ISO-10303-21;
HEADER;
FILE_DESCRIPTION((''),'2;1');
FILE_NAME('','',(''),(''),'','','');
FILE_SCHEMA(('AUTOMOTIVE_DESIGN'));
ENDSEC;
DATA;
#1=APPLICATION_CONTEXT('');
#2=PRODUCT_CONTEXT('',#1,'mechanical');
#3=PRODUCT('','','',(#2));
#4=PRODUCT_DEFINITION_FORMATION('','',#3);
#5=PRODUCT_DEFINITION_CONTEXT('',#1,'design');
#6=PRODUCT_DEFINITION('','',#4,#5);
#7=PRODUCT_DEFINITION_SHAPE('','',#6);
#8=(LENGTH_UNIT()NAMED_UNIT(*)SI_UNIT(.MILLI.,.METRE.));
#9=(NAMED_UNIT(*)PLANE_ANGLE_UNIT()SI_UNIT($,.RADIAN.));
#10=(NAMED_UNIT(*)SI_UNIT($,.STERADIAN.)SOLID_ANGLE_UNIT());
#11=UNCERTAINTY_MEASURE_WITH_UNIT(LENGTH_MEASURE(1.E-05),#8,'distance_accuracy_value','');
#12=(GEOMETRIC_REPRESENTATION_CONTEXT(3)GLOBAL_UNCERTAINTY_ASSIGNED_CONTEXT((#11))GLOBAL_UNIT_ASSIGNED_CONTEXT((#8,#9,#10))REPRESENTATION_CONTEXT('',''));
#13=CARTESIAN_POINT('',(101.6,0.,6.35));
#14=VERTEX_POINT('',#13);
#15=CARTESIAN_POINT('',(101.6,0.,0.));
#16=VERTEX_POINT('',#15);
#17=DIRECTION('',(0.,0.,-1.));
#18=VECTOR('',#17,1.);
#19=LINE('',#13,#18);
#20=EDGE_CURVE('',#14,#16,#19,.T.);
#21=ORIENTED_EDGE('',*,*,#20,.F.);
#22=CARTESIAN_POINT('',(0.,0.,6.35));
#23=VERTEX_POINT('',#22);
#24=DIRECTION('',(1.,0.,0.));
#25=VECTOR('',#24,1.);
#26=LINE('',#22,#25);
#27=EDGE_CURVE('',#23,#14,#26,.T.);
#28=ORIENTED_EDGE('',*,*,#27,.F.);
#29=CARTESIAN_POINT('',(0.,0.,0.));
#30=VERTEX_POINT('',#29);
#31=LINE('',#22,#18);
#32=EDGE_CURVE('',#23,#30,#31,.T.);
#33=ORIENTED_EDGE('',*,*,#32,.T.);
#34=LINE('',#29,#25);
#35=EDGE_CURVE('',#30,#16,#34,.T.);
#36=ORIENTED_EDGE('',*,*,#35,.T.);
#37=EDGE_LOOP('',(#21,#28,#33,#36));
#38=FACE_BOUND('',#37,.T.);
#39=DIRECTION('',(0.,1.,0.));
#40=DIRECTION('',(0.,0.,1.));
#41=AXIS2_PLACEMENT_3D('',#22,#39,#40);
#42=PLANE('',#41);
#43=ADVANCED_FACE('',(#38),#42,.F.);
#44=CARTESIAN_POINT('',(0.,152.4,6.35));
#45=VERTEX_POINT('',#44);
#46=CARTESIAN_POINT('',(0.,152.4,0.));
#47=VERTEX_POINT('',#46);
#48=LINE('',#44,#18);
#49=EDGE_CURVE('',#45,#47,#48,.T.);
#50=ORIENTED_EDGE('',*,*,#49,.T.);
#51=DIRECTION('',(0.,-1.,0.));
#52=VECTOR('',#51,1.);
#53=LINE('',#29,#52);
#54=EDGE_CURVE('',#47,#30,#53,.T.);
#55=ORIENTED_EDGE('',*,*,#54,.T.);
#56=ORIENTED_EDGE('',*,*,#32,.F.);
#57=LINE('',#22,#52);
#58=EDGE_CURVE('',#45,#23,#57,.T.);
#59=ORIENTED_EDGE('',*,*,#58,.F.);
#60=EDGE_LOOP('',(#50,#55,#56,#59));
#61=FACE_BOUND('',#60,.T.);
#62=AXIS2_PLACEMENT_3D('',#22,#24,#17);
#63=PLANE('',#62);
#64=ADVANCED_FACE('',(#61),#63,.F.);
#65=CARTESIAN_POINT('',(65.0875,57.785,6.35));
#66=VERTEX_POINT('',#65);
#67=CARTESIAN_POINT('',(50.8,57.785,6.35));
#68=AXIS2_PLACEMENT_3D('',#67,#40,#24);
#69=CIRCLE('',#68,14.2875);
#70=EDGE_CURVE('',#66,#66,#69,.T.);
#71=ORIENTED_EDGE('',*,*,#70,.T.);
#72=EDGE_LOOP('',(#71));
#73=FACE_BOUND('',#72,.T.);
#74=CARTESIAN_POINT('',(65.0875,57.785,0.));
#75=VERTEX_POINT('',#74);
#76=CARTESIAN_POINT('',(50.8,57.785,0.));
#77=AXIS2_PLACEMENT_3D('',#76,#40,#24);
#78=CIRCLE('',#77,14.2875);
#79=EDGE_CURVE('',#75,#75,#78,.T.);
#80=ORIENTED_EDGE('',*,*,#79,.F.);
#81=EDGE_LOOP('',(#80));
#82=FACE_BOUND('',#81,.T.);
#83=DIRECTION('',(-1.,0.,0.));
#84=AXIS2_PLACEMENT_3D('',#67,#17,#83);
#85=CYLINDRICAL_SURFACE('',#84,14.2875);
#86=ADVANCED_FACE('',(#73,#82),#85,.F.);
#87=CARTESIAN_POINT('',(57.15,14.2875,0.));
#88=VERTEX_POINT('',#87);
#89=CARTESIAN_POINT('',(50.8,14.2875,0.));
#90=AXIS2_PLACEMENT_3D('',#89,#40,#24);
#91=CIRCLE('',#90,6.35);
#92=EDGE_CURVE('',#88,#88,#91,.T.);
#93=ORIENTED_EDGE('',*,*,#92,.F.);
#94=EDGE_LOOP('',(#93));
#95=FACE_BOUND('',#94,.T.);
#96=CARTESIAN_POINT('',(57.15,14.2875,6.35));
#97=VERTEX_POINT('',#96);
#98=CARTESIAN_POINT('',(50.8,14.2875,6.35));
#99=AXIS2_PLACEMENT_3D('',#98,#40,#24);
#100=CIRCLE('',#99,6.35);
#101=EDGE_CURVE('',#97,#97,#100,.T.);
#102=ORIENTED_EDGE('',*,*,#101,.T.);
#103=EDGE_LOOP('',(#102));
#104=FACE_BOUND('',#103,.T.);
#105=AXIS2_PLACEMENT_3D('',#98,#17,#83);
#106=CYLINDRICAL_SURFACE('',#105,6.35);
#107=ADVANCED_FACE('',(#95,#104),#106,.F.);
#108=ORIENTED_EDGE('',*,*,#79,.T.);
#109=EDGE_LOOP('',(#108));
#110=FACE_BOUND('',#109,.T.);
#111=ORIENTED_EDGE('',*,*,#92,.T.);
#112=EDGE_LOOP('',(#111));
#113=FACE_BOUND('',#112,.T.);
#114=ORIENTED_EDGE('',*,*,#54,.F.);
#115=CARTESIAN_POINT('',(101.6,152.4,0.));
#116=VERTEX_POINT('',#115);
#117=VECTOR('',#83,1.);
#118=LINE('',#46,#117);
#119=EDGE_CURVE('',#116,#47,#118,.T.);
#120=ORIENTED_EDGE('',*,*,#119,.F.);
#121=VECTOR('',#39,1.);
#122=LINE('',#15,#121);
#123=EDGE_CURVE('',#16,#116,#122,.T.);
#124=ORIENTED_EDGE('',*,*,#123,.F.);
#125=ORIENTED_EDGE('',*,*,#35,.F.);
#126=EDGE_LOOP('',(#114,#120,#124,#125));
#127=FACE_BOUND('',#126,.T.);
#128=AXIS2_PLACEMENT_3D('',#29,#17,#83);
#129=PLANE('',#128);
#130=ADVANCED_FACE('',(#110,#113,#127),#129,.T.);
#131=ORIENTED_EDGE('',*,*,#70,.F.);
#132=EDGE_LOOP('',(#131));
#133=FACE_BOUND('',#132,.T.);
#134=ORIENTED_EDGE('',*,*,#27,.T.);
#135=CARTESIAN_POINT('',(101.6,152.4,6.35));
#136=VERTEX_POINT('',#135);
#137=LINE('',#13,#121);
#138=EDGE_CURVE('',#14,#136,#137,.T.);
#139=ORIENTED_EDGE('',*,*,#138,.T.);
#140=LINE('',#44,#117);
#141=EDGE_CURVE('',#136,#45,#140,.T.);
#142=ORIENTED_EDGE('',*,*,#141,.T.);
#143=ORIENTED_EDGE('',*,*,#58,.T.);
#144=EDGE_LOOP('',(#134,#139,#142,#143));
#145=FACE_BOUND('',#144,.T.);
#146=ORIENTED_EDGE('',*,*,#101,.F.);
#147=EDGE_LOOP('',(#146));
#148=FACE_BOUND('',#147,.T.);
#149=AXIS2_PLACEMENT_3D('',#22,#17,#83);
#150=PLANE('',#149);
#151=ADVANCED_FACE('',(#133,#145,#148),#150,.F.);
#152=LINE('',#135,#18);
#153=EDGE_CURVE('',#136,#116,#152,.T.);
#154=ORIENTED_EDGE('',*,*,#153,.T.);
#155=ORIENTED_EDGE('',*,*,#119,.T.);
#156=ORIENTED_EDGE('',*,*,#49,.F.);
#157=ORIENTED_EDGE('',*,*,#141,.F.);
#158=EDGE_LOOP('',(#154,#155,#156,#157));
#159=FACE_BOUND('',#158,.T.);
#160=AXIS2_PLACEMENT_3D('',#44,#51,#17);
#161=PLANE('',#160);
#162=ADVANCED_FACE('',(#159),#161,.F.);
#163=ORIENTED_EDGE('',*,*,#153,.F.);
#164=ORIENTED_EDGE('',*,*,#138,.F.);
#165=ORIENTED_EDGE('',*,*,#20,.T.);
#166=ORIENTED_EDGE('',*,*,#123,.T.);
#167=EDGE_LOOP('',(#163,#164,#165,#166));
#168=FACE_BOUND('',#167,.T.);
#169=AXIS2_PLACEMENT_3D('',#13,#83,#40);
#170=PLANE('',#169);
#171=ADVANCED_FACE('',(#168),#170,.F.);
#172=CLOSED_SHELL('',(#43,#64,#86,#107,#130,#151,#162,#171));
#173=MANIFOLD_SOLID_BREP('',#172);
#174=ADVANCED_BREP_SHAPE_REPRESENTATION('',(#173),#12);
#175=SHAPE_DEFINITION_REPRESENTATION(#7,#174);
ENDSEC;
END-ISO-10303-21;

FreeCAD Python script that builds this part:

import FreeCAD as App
import Part
import Sketcher
from FreeCAD import Vector
Q = App.Units.Quantity


def add_polygon(sketch, points):
    """Adds a closed chain of lines whose ends are joined by coincident constraints."""
    first, n = sketch.GeometryCount, len(points)
    for a, b in zip(points, points[1:] + points[:1]):
        sketch.addGeometry(Part.LineSegment(App.Vector(*a, 0), App.Vector(*b, 0)), False)
    for i in range(n):
        sketch.addConstraint(Sketcher.Constraint("Coincident", first + i, 2, first + (i + 1) % n, 1))

doc = App.newDocument("Part")
body = doc.addObject("PartDesign::Body", "Body")

# Sketch on XY plane
sketch1 = body.newObject("Sketcher::SketchObject", "Sketch")
sketch1.AttachmentSupport = (doc.getObject("XY_Plane"), [""])
sketch1.MapMode = "FlatFace"
add_polygon(sketch1, [(0, 152.4), (0, 0), (101.6, 0), (101.6, 152.4)])  # lines 0-3
sketch1.addGeometry(Part.Circle(Vector(50.8, 14.2875, 0), Vector(0, 0, 1), 6.35), False)  # 4
sketch1.addGeometry(Part.Circle(Vector(50.8, 57.785, 0), Vector(0, 0, 1), 14.2875), False)  # 5
sketch1.addConstraint([
    Sketcher.Constraint("Vertical", 0),
    Sketcher.Constraint("Horizontal", 1),
    Sketcher.Constraint("Vertical", 2),
    Sketcher.Constraint("Horizontal", 3),
    Sketcher.Constraint("Coincident", 0, 2, -1, 1),
    Sketcher.Constraint("Vertical", 4, 3, 5, 3),
    Sketcher.Constraint("Diameter", 4, Q("0.5 in")),
    Sketcher.Constraint("DistanceX", 1, 1, 1, 2, Q("4 in")),
    Sketcher.Constraint("DistanceY", 0, 2, 0, 1, Q("6 in")),
    Sketcher.Constraint("Diameter", 5, Q("1.125 in")),
    Sketcher.Constraint("DistanceX", -1, 1, 4, 3, Q("2 in")),
    Sketcher.Constraint("DistanceY", -1, 1, 4, 3, Q("0.5625 in")),
    Sketcher.Constraint("DistanceY", -1, 1, 5, 3, Q("2.275 in")),
])
pad1 = body.newObject("PartDesign::Pad", "Pad")
pad1.Profile = sketch1
pad1.Length = Q("0.25 in")

doc.recompute()
